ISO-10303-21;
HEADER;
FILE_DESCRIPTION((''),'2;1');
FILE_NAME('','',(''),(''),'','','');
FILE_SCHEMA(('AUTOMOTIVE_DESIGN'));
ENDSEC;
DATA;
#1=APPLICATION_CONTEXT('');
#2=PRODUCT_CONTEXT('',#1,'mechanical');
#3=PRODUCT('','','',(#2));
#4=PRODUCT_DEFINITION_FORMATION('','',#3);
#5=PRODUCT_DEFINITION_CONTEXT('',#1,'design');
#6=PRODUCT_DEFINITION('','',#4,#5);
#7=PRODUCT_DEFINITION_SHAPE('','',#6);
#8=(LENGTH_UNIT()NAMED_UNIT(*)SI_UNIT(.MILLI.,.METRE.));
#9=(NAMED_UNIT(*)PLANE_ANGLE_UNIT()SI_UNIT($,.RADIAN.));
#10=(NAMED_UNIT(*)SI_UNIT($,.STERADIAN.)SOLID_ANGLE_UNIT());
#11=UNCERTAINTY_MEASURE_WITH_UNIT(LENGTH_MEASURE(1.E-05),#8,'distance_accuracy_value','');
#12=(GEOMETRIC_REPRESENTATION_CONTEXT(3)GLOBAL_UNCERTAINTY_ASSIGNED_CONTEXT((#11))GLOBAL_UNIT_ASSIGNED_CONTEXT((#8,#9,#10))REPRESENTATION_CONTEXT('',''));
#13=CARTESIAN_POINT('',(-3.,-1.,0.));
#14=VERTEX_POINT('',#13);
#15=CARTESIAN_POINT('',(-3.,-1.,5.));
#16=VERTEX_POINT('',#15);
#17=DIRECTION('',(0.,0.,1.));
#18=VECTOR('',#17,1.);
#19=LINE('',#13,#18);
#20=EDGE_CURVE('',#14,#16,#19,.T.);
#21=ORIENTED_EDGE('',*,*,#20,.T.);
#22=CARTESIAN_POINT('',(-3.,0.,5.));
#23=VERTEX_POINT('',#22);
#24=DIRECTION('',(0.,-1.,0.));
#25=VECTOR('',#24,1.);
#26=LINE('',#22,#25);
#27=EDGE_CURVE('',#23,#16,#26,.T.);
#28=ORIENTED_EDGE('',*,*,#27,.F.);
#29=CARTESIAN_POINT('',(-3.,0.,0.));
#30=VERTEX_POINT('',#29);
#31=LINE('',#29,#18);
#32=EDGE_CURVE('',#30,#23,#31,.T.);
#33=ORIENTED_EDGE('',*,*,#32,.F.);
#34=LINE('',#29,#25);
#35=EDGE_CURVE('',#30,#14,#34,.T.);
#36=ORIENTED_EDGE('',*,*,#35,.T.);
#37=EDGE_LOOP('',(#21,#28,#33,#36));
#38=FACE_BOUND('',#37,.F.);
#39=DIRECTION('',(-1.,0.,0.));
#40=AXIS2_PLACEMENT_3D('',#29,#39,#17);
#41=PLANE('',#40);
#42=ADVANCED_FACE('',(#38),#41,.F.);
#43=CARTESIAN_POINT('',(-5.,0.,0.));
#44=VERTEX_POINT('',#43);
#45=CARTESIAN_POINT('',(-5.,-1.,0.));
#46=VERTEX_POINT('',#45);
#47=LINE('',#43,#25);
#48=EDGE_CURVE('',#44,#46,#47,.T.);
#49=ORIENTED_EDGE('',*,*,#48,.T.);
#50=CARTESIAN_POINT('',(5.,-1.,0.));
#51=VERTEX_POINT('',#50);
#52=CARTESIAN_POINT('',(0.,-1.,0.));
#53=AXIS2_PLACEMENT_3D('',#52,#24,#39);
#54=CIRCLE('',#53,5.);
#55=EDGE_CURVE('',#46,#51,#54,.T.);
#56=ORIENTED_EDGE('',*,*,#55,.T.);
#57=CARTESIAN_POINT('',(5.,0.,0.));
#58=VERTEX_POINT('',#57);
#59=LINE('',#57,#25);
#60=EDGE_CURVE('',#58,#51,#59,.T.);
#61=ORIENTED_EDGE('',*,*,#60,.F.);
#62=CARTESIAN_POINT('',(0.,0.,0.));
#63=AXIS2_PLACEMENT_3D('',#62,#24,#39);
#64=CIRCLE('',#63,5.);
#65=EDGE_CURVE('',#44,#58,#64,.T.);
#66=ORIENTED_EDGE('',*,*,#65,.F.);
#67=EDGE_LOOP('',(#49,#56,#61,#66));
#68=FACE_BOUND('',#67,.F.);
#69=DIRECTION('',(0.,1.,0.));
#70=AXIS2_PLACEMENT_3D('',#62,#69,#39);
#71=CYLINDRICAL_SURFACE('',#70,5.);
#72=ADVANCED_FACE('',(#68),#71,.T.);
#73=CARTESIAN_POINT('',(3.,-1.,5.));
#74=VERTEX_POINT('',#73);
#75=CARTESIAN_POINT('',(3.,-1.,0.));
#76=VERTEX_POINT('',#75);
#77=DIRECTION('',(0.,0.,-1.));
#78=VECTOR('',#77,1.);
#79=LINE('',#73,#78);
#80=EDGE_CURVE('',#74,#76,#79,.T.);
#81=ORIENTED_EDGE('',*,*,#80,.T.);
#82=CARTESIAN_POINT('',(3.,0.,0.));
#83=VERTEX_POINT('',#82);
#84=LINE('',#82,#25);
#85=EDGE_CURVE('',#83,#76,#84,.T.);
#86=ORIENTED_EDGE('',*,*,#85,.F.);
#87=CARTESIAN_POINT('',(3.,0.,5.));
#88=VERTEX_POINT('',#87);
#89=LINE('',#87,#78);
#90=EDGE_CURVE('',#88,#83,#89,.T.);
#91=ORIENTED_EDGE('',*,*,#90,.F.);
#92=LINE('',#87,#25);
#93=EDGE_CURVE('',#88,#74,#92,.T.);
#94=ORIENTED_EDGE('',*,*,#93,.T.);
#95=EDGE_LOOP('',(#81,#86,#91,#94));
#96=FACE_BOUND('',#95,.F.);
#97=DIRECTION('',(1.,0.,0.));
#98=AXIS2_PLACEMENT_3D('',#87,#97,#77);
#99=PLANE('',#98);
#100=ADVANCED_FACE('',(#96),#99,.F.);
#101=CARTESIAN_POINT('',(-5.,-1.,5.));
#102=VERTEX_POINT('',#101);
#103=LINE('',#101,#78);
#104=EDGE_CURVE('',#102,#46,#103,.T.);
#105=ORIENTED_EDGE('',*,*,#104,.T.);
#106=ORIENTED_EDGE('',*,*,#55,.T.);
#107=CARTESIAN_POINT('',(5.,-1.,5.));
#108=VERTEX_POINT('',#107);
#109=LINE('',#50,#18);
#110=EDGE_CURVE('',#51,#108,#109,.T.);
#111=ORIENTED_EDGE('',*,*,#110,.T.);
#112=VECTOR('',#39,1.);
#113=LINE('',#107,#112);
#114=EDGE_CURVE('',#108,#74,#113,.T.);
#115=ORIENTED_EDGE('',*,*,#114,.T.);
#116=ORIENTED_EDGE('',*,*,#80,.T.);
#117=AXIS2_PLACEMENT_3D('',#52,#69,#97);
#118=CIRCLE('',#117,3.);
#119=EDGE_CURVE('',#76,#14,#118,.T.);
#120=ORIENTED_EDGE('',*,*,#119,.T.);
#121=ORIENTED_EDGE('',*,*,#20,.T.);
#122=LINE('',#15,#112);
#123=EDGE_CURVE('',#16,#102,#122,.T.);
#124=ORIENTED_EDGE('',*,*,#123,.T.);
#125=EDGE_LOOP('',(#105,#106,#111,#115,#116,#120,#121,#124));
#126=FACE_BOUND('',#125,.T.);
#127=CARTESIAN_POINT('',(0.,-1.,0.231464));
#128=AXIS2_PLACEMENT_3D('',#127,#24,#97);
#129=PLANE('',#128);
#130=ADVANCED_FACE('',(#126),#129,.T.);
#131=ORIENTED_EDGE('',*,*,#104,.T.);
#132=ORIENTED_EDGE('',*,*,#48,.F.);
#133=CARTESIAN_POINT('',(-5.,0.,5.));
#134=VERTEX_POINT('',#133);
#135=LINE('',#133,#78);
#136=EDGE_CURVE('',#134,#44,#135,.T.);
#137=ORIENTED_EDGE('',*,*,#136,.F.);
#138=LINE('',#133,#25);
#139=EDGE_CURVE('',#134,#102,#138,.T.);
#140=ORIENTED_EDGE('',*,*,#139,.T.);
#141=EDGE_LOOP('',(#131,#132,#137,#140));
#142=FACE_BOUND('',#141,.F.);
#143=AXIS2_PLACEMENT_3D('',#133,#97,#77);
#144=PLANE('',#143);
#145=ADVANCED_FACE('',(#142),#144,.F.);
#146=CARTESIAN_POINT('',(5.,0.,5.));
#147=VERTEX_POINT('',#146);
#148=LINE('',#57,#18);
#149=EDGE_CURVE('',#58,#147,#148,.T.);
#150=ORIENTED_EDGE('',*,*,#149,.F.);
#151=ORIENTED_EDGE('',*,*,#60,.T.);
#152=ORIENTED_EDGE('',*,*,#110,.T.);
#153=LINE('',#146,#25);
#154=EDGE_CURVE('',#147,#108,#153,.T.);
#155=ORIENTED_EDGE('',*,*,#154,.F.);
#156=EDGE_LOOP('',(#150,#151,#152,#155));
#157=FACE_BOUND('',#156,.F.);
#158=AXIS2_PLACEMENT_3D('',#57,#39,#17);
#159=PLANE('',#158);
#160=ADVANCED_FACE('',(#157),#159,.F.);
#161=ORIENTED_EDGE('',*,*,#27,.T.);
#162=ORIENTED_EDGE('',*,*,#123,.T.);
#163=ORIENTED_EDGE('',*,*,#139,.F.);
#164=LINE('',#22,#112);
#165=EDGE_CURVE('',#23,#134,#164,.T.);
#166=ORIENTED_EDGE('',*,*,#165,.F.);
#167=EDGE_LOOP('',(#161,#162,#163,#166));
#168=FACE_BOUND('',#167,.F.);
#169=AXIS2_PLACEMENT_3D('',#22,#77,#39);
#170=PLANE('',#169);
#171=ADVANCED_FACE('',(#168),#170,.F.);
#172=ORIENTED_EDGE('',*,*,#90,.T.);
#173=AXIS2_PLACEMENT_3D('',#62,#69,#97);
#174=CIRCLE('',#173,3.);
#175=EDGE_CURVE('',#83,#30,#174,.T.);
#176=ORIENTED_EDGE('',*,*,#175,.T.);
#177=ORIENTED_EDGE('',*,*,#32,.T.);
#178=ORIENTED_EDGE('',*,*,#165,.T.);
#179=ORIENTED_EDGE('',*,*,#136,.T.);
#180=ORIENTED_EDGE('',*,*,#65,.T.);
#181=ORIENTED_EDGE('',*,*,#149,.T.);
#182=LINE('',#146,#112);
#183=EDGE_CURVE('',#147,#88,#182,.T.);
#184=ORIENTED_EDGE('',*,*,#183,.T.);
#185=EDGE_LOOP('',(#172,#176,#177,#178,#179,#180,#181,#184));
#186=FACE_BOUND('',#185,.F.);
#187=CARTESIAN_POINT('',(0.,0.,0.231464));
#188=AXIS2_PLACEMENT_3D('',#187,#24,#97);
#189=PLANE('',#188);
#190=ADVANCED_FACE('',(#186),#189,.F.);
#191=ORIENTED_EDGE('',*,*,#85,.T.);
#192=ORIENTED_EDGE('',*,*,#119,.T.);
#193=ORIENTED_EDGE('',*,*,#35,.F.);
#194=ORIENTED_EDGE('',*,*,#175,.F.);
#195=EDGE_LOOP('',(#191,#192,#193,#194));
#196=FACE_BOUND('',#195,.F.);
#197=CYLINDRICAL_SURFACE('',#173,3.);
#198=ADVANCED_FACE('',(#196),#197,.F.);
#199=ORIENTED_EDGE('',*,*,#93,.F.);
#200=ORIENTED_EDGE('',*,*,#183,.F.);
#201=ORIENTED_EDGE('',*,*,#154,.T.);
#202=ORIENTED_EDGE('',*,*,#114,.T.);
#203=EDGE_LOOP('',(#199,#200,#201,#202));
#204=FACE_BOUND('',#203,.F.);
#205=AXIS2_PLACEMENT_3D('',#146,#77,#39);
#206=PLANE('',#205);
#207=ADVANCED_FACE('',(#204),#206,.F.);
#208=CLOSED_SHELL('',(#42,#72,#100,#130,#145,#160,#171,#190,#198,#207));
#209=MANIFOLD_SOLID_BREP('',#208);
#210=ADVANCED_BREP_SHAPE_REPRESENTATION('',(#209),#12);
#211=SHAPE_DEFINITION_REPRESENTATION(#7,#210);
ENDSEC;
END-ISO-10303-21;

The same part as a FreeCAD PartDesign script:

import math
import FreeCAD as App
import Part
import Sketcher
from FreeCAD import Vector
Q = App.Units.Quantity

doc = App.newDocument("Part")
body = doc.addObject("PartDesign::Body", "Body")

# Sketch on XZ plane
sketch1 = body.newObject("Sketcher::SketchObject", "Sketch")
sketch1.AttachmentSupport = (doc.getObject("XZ_Plane"), [""])
sketch1.MapMode = "FlatFace"
sketch1.addGeometry(Part.LineSegment(Vector(-5, 5, 0), Vector(-5, 0, 0)), False)
sketch1.addGeometry(Part.ArcOfCircle(Part.Circle(Vector(0, 0, 0), Vector(0, 0, 1), 5), math.radians(180), math.radians(360)), False)
sketch1.addGeometry(Part.LineSegment(Vector(5, 0, 0), Vector(5, 5, 0)), False)
sketch1.addGeometry(Part.LineSegment(Vector(5, 5, 0), Vector(3, 5, 0)), False)
sketch1.addGeometry(Part.LineSegment(Vector(3, 5, 0), Vector(3, 0, 0)), False)
sketch1.addGeometry(Part.ArcOfCircle(Part.Circle(Vector(0, 0, 0), Vector(0, 0, 1), 3), math.radians(180), math.radians(360)), False)
sketch1.addGeometry(Part.LineSegment(Vector(-3, 0, 0), Vector(-3, 5, 0)), False)
sketch1.addGeometry(Part.LineSegment(Vector(-3, 5, 0), Vector(-5, 5, 0)), False)
sketch1.addConstraint(Sketcher.Constraint("Tangent", 0, 2, 1, 1))
sketch1.addConstraint(Sketcher.Constraint("Tangent", 1, 2, 2, 1))
sketch1.addConstraint(Sketcher.Constraint("Coincident", 2, 2, 3, 1))
sketch1.addConstraint(Sketcher.Constraint("Coincident", 3, 2, 4, 1))
sketch1.addConstraint(Sketcher.Constraint("Tangent", 4, 2, 5, 2))
sketch1.addConstraint(Sketcher.Constraint("Tangent", 5, 1, 6, 1))
sketch1.addConstraint(Sketcher.Constraint("Coincident", 6, 2, 7, 1))
sketch1.addConstraint(Sketcher.Constraint("Coincident", 7, 2, 0, 1))
sketch1.addConstraint(Sketcher.Constraint("Vertical", 0))
sketch1.addConstraint(Sketcher.Constraint("Vertical", 2))
sketch1.addConstraint(Sketcher.Constraint("Horizontal", 3))
sketch1.addConstraint(Sketcher.Constraint("Vertical", 4))
sketch1.addConstraint(Sketcher.Constraint("Vertical", 6))
sketch1.addConstraint(Sketcher.Constraint("Horizontal", 7))
sketch1.addConstraint(Sketcher.Constraint("Coincident", 1, 3, -1, 1))
sketch1.addConstraint(Sketcher.Constraint("Coincident", 5, 3, -1, 1))
sketch1.addConstraint(Sketcher.Constraint("Horizontal", 3, 2, 6, 2))
sketch1.addConstraint(Sketcher.Constraint("Radius", 1, Q("5 mm")))
sketch1.addConstraint(Sketcher.Constraint("Radius", 5, Q("3 mm")))
sketch1.addConstraint(Sketcher.Constraint("DistanceY", 0, 2, 0, 1, Q("5 mm")))
pad1 = body.newObject("PartDesign::Pad", "Pad")
pad1.Profile = sketch1
pad1.Length = 1

doc.recompute()
